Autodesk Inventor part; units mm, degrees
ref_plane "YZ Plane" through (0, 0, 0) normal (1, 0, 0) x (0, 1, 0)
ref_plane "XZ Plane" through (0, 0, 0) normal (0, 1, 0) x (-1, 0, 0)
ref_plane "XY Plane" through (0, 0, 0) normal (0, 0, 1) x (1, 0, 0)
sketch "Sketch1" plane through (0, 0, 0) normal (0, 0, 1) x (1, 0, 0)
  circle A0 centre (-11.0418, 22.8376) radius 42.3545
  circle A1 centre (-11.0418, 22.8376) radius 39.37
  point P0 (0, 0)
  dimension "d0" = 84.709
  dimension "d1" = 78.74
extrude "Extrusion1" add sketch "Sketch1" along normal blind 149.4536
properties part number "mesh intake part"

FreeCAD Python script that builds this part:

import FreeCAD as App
import Part
import Sketcher
Q = App.Units.Quantity

doc = App.newDocument("Part")
body = doc.addObject("PartDesign::Body", "Body")

sketch1 = body.newObject("Sketcher::SketchObject", "Sketch")
sketch1.AttachmentSupport = (doc.getObject("XY_Plane"), [""])
sketch1.MapMode = "FlatFace"
sketch1.addGeometry(Part.Circle(App.Vector(-11, 23, 0), App.Vector(0, 0, 1), 42), False)
sketch1.addGeometry(Part.Circle(App.Vector(-11, 23, 0), App.Vector(0, 0, 1), 39), False)
sketch1.addConstraint(Sketcher.Constraint("Coincident", 1, 3, 0, 3))
sketch1.addConstraint(Sketcher.Constraint("Diameter", 1, Q("3.1 in")))
sketch1.addConstraint(Sketcher.Constraint("Diameter", 0, Q("3.335 in")))
sketch1.addConstraint(Sketcher.Constraint("DistanceX", 0, 3, -1, 1, 11.0418))
sketch1.addConstraint(Sketcher.Constraint("DistanceY", -1, 1, 0, 3, 22.8376))
pad1 = body.newObject("PartDesign::Pad", "Pad")
pad1.Profile = sketch1
pad1.Length = Q("5.884 in")

doc.recompute()
